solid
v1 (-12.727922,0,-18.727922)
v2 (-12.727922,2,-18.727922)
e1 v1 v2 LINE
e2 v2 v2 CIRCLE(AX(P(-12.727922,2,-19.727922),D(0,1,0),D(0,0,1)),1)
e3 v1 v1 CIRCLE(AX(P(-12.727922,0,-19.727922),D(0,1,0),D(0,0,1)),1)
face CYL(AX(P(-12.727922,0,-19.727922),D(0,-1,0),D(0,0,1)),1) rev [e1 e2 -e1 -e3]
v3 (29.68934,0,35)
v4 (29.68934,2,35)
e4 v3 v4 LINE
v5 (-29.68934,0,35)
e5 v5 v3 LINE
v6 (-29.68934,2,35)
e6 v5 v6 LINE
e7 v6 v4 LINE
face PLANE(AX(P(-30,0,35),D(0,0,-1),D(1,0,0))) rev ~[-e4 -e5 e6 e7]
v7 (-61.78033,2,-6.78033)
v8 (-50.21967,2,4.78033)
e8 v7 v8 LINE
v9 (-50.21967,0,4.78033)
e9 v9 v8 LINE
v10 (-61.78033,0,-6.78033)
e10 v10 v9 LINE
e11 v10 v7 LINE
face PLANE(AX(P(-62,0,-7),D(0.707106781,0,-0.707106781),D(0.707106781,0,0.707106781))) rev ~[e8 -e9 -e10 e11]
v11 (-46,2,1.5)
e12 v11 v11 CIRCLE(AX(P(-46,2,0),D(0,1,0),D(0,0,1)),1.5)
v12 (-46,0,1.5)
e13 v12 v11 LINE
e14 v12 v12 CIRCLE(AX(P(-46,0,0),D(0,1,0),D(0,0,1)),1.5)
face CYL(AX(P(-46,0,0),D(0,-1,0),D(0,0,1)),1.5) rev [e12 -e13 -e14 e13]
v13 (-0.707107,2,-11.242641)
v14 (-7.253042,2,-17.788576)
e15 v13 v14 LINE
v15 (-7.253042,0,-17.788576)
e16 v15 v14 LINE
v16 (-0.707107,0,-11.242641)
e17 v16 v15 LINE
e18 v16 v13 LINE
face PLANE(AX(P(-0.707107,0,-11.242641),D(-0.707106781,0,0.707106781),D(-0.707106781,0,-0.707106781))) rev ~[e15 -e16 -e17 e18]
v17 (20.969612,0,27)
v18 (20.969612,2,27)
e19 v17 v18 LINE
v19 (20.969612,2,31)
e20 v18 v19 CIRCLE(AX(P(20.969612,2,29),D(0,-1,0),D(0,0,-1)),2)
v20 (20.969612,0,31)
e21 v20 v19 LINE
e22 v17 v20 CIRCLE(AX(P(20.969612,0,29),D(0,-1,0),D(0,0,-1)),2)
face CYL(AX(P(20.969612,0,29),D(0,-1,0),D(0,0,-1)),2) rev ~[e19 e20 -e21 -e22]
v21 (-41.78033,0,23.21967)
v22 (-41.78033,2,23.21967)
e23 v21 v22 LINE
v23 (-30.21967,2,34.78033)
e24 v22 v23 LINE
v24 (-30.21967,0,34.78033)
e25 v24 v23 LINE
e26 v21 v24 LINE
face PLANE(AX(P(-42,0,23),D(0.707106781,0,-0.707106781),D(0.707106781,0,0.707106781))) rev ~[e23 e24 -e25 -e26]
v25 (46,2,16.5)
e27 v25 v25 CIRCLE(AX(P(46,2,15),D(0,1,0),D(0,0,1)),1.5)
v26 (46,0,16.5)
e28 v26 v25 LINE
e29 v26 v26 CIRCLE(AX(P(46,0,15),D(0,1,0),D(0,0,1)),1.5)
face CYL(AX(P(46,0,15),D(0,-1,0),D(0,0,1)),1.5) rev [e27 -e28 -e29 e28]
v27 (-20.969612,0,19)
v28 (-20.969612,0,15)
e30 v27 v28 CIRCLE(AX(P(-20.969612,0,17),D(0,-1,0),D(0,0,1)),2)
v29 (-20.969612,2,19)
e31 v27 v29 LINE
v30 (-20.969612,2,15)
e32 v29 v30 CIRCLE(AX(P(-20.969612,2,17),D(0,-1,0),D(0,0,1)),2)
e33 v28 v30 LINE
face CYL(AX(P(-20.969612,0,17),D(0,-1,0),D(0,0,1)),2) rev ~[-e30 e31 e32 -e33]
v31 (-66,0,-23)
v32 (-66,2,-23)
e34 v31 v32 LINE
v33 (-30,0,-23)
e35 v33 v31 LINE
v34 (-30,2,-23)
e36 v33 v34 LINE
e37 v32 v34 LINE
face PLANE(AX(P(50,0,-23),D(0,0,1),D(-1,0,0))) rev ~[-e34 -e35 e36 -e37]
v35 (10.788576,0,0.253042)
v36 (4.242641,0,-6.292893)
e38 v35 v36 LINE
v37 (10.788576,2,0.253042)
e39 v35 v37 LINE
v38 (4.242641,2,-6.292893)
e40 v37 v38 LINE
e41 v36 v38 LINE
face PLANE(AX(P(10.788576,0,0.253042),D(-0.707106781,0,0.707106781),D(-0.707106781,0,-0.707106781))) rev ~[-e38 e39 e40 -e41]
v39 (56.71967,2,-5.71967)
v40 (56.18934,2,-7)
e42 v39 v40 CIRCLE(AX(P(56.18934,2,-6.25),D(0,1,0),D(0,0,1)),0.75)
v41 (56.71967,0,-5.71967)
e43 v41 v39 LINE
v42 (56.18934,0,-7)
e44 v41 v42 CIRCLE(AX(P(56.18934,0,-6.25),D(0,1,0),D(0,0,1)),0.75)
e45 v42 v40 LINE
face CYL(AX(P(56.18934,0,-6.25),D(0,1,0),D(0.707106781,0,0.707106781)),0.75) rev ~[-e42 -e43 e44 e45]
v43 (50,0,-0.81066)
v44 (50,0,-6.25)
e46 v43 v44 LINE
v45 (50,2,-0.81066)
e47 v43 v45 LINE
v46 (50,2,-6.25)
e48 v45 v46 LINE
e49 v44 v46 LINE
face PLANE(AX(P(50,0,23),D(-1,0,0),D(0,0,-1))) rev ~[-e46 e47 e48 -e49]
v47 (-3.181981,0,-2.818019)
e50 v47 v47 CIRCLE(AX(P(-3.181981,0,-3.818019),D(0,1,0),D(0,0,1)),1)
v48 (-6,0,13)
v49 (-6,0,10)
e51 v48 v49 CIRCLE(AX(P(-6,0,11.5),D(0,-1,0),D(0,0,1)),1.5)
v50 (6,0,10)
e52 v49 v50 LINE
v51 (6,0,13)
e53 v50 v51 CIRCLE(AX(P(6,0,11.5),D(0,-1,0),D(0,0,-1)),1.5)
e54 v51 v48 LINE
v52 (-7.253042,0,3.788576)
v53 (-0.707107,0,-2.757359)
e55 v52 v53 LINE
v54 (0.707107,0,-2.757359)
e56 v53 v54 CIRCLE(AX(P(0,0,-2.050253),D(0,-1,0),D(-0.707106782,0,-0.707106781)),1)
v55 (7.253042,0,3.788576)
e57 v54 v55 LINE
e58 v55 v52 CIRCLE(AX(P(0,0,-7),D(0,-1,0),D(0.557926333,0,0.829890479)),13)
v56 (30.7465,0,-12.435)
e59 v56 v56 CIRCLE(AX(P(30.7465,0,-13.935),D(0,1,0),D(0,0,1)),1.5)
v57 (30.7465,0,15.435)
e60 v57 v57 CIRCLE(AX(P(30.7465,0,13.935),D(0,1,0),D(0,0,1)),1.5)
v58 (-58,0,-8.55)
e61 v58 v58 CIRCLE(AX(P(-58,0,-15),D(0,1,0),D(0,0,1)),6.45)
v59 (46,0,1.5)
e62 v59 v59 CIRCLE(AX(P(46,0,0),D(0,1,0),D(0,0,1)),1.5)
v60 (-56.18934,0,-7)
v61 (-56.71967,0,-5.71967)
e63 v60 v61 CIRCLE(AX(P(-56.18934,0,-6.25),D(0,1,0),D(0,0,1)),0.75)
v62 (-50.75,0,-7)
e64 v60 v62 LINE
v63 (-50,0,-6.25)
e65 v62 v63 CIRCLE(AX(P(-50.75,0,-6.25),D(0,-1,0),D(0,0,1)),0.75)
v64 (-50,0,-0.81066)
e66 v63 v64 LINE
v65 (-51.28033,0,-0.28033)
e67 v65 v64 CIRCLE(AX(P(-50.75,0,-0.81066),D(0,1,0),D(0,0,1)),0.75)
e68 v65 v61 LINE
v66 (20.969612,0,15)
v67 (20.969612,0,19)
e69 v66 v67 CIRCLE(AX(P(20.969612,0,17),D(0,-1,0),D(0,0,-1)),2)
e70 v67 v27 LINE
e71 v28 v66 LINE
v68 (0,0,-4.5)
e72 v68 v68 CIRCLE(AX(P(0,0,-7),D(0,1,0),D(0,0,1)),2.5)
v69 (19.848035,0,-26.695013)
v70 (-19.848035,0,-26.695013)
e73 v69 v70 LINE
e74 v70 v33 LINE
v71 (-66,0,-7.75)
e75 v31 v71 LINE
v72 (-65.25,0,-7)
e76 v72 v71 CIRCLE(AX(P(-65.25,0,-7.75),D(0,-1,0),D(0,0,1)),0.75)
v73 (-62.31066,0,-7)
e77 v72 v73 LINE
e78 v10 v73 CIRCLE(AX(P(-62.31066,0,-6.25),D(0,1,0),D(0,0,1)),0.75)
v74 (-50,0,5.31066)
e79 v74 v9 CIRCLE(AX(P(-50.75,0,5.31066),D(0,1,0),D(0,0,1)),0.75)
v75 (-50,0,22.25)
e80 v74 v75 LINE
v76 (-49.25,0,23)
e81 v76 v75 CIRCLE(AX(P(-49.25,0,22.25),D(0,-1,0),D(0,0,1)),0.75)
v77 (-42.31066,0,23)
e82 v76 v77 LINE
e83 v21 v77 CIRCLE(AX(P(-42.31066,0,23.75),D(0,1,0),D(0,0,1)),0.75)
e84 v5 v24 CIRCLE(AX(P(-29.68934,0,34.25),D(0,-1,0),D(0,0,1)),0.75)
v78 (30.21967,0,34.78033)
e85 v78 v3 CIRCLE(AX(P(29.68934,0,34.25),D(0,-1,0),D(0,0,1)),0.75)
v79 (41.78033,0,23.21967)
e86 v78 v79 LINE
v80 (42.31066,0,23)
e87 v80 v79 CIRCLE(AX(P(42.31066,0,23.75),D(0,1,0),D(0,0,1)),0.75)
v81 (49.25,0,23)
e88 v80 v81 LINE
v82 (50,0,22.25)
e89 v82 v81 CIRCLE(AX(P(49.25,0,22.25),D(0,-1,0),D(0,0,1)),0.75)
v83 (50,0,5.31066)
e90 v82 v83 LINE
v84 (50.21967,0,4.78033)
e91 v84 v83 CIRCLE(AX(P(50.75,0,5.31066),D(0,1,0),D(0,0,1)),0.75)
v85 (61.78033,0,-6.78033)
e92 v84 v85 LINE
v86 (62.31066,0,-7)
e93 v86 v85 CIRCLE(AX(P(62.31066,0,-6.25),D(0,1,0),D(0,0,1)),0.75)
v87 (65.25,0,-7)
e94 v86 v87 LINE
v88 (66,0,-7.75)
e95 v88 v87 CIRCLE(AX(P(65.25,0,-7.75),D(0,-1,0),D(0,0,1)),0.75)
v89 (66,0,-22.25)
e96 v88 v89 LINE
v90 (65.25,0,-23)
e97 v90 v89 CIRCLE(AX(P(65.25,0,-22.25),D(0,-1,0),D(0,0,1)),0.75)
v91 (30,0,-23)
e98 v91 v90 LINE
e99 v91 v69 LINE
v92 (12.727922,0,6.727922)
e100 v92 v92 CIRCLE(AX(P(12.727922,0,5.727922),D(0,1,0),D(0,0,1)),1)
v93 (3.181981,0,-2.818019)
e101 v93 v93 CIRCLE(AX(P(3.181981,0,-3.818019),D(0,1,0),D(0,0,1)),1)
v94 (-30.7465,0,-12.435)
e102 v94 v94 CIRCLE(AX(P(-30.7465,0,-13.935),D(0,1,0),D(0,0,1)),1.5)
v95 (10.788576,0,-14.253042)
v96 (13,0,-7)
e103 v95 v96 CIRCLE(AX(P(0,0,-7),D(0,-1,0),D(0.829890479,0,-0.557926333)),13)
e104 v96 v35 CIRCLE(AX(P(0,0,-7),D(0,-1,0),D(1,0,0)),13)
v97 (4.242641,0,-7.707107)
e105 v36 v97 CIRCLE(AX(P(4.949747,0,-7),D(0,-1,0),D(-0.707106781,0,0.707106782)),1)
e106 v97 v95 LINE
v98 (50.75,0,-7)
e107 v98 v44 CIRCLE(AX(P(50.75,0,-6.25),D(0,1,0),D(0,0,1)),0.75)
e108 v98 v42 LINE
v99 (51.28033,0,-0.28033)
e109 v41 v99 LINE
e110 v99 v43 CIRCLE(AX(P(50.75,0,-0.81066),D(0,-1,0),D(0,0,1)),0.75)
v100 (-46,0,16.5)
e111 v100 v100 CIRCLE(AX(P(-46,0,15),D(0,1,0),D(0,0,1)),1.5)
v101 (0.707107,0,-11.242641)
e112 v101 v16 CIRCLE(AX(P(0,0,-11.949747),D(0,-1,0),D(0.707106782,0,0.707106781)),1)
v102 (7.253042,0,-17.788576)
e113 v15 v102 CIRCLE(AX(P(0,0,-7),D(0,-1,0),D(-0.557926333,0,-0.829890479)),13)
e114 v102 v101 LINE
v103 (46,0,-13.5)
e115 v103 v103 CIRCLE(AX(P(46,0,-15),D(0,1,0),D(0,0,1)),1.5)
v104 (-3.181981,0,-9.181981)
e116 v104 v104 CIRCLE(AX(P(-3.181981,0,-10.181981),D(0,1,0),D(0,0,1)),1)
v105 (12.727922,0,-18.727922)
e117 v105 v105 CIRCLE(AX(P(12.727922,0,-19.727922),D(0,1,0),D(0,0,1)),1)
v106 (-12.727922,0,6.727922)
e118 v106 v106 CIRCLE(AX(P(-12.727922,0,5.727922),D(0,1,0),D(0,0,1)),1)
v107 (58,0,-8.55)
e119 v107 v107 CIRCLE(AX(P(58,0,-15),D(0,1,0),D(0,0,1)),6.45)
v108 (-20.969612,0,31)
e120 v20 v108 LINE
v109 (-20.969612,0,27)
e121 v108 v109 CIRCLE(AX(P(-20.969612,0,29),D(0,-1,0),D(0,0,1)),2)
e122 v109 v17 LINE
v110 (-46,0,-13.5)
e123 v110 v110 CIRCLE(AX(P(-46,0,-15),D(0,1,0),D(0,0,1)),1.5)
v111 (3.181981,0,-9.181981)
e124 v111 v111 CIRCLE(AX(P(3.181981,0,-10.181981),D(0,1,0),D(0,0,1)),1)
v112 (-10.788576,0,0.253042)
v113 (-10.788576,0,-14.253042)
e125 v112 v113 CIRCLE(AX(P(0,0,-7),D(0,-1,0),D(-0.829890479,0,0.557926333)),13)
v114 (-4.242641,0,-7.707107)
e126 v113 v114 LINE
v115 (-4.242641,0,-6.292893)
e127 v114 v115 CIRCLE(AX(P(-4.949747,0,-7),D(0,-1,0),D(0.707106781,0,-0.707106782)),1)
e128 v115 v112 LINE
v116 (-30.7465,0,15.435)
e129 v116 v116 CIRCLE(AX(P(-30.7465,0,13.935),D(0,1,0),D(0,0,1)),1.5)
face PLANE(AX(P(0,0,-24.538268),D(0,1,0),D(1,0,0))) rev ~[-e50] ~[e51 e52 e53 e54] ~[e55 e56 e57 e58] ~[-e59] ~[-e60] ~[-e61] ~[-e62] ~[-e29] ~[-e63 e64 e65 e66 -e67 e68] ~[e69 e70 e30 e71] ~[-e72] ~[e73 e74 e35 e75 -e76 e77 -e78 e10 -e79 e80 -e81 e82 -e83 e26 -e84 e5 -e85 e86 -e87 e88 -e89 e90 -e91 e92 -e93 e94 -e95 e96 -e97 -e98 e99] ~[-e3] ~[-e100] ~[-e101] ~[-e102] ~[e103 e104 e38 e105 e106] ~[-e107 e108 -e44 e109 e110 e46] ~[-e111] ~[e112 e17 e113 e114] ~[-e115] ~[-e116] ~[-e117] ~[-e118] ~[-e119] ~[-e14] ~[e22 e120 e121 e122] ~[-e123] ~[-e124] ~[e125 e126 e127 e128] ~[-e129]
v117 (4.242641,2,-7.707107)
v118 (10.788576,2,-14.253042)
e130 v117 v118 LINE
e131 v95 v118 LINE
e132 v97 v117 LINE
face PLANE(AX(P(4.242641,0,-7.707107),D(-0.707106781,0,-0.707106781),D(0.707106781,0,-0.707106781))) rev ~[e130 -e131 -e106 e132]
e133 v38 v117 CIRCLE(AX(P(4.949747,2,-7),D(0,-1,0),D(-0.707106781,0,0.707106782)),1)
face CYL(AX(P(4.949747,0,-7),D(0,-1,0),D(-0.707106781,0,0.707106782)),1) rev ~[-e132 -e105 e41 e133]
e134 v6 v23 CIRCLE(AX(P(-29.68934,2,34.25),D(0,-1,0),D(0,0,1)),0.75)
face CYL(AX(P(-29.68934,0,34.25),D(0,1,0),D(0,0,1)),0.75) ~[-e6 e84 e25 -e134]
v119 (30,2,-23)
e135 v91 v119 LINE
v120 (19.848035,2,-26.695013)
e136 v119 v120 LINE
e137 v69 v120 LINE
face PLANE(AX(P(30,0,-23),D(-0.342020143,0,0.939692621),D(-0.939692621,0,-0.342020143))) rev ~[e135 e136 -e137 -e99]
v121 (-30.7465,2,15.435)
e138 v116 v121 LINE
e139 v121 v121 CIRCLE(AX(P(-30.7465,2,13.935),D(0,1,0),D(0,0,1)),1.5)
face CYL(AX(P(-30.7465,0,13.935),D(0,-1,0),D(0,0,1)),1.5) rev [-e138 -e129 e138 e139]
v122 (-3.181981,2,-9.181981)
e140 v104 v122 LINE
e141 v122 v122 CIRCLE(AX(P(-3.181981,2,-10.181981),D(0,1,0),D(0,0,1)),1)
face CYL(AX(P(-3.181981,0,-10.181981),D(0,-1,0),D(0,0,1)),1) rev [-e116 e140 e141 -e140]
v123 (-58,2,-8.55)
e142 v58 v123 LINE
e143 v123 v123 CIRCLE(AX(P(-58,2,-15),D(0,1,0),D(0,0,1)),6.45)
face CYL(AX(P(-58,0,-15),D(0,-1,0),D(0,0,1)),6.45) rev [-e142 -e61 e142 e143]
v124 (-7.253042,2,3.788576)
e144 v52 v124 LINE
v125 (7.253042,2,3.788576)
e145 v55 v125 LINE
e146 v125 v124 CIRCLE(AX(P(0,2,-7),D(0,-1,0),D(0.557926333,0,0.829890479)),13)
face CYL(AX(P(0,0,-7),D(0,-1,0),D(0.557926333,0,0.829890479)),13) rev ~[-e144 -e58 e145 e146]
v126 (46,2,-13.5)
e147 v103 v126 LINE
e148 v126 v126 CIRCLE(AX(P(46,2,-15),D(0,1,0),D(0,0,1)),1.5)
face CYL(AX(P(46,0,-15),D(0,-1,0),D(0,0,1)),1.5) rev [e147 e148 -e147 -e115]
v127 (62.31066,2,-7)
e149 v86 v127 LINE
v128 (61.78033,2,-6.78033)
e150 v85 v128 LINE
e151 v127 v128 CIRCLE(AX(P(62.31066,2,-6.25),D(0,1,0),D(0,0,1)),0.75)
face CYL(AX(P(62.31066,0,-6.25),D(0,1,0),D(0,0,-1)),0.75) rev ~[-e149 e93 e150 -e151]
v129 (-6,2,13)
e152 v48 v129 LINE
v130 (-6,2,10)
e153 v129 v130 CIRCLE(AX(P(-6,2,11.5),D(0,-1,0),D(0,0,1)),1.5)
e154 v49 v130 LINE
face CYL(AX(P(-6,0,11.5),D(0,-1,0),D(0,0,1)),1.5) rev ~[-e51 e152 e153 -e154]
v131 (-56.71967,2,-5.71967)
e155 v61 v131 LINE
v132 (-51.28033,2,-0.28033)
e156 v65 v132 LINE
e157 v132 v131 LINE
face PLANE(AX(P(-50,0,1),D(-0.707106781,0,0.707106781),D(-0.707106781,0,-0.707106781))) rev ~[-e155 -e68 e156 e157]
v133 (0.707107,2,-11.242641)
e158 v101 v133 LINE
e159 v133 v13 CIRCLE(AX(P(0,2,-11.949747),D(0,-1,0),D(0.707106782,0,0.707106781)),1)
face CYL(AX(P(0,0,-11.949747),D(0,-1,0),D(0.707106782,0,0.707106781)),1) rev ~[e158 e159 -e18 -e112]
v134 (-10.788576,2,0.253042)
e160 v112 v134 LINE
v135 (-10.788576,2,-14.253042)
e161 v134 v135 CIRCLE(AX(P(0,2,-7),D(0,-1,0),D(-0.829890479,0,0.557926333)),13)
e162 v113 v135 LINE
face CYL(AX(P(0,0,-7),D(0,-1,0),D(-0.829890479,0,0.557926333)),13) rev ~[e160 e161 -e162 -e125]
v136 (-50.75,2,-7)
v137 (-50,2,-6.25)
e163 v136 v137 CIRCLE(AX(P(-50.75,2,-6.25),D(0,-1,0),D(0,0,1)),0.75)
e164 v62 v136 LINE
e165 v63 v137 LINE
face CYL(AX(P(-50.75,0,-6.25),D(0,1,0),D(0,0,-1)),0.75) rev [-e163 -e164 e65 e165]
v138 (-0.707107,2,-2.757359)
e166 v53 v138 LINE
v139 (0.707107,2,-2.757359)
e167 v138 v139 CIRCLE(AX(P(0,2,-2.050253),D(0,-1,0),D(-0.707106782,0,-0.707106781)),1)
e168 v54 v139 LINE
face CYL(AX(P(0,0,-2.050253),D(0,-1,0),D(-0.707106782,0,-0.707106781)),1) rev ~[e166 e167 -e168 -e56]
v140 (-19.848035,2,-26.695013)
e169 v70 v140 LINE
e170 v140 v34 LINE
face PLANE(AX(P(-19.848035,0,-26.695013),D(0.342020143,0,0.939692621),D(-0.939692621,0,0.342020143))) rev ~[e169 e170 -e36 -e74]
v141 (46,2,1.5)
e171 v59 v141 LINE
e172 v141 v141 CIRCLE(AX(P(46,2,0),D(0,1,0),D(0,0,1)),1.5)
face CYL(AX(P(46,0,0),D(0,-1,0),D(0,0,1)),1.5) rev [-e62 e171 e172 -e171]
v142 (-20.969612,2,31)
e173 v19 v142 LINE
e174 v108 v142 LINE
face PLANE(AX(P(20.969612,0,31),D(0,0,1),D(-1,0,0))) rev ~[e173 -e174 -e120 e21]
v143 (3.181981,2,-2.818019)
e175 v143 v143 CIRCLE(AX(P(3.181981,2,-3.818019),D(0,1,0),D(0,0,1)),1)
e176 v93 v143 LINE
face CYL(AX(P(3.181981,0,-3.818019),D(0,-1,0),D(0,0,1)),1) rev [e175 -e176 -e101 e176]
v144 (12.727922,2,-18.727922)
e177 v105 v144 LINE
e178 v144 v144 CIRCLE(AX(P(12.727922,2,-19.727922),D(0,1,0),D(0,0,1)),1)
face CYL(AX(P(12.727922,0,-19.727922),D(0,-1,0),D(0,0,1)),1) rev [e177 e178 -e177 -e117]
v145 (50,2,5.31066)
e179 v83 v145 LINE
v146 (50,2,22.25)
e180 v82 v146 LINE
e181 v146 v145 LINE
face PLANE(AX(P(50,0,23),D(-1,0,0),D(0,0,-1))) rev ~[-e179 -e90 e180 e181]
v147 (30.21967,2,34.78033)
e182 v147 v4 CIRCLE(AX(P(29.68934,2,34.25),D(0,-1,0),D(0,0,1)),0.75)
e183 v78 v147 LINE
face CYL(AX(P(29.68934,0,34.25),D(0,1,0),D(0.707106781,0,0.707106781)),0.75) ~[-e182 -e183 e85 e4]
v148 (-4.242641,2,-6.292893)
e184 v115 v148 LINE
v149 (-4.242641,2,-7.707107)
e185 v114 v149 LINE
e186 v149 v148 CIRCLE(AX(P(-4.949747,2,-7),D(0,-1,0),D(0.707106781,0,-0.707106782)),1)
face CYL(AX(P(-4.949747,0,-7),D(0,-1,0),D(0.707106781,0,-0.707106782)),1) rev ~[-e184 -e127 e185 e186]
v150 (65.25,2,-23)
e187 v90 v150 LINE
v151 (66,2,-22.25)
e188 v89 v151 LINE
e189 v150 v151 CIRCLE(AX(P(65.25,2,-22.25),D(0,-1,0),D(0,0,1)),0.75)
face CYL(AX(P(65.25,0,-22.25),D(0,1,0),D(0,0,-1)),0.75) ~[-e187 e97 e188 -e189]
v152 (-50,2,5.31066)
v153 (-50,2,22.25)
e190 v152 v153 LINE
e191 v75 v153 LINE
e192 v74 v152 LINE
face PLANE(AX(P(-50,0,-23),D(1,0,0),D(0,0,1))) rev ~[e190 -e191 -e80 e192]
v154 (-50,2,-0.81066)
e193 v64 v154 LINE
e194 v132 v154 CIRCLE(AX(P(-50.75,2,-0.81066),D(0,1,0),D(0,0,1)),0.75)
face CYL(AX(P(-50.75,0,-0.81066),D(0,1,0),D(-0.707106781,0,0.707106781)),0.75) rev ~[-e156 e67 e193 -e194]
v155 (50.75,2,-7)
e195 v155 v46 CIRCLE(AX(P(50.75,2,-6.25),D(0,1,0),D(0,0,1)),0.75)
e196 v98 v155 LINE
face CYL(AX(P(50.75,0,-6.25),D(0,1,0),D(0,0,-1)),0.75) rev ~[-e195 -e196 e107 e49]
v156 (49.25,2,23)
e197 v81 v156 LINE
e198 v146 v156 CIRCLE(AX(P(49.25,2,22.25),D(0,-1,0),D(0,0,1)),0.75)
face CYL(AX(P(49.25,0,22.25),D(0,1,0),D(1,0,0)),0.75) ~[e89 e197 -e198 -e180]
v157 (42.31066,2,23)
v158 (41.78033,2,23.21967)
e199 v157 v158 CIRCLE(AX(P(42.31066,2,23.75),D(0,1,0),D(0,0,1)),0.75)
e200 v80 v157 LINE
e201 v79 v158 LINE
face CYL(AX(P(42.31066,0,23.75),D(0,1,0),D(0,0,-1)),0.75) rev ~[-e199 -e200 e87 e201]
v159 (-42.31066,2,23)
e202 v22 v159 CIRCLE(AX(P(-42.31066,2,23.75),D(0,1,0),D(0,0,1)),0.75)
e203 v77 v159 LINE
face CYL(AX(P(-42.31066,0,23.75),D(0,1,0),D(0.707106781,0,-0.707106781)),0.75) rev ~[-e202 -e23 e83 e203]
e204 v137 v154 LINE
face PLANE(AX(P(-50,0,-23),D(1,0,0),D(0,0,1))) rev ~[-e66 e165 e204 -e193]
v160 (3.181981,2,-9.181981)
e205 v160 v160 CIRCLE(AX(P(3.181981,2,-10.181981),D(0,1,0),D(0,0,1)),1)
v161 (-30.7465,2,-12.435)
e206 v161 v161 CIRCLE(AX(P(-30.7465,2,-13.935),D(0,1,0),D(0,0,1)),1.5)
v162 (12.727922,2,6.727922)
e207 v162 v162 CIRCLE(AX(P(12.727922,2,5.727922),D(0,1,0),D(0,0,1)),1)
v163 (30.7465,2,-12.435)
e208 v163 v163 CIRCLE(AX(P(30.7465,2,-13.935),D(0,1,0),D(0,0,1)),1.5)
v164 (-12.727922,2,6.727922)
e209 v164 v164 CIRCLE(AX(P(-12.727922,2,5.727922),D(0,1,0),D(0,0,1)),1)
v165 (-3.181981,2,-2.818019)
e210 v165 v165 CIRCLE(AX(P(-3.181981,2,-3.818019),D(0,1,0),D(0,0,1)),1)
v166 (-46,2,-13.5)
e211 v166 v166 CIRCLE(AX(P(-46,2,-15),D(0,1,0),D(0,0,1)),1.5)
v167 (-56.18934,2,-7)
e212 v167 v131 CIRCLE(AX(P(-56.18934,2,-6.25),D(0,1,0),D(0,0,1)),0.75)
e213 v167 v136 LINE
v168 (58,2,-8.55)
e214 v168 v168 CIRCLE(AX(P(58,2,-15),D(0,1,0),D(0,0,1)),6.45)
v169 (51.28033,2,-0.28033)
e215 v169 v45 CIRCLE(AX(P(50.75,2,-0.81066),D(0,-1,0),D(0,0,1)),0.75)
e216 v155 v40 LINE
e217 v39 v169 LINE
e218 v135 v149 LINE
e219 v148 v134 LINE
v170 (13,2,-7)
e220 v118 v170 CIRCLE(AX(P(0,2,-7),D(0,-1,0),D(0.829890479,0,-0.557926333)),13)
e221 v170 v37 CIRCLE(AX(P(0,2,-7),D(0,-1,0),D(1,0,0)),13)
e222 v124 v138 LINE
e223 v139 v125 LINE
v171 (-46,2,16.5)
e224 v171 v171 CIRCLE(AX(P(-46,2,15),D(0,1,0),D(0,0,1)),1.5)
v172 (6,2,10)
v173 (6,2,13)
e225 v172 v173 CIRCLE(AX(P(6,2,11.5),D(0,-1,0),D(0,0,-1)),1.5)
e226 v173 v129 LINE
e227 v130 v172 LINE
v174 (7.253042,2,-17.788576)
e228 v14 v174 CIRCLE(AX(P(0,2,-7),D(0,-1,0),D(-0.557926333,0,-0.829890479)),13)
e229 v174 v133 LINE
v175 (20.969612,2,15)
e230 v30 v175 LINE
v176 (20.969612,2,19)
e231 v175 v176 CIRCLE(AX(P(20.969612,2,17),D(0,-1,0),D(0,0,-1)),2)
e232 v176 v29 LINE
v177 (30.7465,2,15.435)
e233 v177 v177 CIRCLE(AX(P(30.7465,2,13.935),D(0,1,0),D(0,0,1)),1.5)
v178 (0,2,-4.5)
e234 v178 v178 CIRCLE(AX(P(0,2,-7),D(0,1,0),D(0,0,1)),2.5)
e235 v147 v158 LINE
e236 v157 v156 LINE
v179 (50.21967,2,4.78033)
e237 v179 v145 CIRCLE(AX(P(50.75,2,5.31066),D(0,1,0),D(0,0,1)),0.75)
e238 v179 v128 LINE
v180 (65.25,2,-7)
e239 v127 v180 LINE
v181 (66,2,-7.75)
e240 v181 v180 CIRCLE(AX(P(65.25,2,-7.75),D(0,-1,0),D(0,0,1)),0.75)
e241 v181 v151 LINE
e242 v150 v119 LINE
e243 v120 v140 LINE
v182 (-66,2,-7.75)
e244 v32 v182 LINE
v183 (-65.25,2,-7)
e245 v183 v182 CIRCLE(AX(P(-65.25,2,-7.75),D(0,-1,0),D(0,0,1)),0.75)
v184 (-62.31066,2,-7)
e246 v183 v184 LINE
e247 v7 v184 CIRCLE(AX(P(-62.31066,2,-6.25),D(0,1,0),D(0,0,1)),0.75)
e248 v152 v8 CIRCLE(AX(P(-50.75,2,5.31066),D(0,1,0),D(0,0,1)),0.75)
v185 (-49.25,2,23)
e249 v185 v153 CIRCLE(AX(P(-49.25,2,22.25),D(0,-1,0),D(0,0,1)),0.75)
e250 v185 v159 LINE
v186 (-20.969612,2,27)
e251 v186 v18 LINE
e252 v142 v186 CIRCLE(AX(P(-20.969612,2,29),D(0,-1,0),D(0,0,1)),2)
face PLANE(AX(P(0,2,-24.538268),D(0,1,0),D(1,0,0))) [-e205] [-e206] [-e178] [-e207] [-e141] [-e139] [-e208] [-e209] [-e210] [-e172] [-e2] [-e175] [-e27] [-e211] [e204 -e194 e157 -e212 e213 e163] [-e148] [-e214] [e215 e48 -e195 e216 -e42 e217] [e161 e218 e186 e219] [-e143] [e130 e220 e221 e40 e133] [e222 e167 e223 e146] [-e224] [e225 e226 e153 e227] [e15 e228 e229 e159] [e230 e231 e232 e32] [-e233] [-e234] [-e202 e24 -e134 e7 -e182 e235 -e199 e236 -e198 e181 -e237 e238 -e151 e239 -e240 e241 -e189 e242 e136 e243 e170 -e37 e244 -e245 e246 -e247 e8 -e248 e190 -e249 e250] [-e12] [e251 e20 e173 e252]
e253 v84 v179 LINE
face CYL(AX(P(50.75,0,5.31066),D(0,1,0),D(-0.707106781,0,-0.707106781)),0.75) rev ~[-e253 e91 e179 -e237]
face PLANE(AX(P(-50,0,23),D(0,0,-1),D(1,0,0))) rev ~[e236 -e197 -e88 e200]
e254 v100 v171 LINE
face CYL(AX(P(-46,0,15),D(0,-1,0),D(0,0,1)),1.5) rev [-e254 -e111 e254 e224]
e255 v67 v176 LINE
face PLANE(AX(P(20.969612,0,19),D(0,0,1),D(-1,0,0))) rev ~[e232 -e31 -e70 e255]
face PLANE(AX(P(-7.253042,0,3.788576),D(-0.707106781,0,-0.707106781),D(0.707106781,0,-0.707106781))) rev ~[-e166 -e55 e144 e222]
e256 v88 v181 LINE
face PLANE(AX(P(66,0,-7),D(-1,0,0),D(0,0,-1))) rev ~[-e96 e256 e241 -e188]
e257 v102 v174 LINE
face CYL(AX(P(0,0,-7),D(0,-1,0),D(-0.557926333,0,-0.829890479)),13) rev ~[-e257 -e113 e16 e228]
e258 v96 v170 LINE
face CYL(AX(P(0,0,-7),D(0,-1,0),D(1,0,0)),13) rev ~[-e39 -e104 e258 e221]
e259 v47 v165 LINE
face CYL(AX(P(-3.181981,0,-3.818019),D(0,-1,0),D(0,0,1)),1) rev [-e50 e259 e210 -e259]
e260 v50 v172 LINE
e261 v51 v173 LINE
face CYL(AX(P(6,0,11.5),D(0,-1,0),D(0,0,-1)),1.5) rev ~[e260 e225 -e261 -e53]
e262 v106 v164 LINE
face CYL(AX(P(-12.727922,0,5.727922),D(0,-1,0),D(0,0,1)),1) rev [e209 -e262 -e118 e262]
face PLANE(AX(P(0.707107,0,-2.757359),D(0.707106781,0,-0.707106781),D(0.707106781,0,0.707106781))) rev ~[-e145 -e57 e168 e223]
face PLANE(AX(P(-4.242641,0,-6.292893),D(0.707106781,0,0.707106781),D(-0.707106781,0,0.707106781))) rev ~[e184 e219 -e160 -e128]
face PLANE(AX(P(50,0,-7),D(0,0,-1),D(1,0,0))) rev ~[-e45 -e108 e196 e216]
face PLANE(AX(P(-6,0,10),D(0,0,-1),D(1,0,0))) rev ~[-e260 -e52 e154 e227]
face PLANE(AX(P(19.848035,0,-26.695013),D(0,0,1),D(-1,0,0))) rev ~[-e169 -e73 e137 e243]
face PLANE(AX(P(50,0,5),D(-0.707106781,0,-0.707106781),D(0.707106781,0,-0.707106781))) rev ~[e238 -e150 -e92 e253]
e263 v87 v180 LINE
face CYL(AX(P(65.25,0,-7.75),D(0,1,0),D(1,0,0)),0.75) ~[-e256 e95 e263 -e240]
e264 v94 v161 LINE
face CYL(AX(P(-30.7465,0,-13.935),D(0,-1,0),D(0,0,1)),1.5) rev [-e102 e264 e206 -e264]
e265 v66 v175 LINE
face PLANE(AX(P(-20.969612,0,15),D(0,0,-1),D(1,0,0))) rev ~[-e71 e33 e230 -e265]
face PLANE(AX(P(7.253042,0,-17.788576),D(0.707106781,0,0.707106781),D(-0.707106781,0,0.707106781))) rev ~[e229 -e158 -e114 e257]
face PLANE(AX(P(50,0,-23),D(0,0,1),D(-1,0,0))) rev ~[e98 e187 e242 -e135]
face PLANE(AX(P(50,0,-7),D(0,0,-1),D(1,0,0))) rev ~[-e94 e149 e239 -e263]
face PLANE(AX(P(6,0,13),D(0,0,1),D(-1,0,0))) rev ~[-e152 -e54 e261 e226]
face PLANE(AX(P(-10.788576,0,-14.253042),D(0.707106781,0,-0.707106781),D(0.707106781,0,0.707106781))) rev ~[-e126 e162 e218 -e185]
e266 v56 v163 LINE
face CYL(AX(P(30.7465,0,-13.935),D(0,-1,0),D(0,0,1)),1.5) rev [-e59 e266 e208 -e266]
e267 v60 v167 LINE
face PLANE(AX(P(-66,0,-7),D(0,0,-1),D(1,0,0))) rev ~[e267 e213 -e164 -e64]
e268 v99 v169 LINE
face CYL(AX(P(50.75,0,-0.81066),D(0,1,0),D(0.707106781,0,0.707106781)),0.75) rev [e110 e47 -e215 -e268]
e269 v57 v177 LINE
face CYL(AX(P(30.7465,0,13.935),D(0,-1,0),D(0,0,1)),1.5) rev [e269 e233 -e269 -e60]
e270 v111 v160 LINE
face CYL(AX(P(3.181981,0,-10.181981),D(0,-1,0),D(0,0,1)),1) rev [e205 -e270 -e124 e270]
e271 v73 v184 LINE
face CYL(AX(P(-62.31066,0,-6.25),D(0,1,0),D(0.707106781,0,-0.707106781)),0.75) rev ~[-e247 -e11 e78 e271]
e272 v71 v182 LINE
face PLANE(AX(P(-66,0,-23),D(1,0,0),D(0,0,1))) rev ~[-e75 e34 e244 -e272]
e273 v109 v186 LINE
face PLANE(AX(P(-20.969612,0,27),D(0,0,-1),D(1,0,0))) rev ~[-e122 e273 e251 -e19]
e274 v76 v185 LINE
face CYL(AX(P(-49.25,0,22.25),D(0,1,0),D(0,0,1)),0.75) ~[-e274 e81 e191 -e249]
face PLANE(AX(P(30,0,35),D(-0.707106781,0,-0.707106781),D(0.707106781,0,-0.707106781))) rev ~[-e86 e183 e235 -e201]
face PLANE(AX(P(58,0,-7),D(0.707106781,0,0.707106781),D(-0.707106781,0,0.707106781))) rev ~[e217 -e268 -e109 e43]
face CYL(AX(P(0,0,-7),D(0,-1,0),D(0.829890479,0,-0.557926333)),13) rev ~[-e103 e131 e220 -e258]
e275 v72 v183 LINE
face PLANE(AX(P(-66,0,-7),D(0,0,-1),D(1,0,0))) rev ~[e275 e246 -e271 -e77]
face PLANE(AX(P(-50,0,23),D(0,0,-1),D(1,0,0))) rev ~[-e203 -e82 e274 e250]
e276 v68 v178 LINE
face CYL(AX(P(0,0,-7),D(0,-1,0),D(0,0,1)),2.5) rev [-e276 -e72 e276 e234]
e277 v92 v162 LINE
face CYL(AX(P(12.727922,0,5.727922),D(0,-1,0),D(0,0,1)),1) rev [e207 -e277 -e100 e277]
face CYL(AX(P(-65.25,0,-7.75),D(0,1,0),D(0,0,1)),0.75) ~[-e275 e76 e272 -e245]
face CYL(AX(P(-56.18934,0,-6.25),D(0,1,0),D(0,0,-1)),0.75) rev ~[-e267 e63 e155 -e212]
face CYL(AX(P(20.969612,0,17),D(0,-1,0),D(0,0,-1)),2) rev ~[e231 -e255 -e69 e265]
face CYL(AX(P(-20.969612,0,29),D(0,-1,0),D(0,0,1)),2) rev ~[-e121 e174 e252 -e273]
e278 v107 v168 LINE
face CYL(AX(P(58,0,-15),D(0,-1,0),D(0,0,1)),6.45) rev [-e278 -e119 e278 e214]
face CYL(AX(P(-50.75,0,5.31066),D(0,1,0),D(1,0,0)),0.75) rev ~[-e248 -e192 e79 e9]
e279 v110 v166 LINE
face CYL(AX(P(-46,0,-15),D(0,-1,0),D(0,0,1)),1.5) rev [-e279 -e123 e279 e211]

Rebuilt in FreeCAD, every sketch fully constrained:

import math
import FreeCAD as App
import Part
import Sketcher
Q = App.Units.Quantity


def edges_at(feature, points):
    """Names of the edges that pass closest to the given points."""
    edges = feature.Shape.Edges
    near = lambda p: min(range(len(edges)), key=lambda i: edges[i].distToShape(Part.Vertex(*p))[0])
    return sorted({f"Edge{near(p) + 1}" for p in points})


def add_polygon(sketch, points):
    """Adds a closed chain of lines whose ends are joined by coincident constraints."""
    first, n = sketch.GeometryCount, len(points)
    for a, b in zip(points, points[1:] + points[:1]):
        sketch.addGeometry(Part.LineSegment(App.Vector(*a, 0), App.Vector(*b, 0)), False)
    for i in range(n):
        sketch.addConstraint(Sketcher.Constraint("Coincident", first + i, 2, first + (i + 1) % n, 1))

doc = App.newDocument("Part")
params = doc.addObject("Spreadsheet::Sheet", "Params")
for row, (alias, value) in enumerate([
    ("sketch1_diameter", "3 mm"),
    ("sketch1_diameter2", "2 mm"),
    ("sketch1_diameter3", "5 mm"),
    ("sketch1_radius", "2 mm"),
    ("sketch1_radius2", "13 mm"),
    ("pad1_length", "2 mm"),
    ("fillet_radius", "0.75 mm"),
], start=1):
    params.set(f"A{row}", alias)
    params.set(f"B{row}", "=" + value)
    params.setAlias(f"B{row}", alias)

body = doc.addObject("PartDesign::Body", "Body")

sketch1 = body.newObject("Sketcher::SketchObject", "Sketch")
sketch1.AttachmentSupport = (doc.getObject("XZ_Plane"), [""])
sketch1.MapMode = "FlatFace"
add_polygon(sketch1, [(-19.848035, -26.695013), (-30, -23), (-66, -23), (-66, -7), (-62, -7), (-50, 5), (-50, 23), (-42, 23), (-30, 35), (30, 35), (42, 23), (50, 23), (50, 5), (62, -7), (66, -7), (66, -23), (30, -23), (19.848035, -26.695013)])
add_polygon(sketch1, [(-50, -7), (-50, 1), (-58, -7)])
sketch1.addGeometry(Part.Circle(App.Vector(46, -15, 0), App.Vector(0, 0, 1), 1.5), False)
add_polygon(sketch1, [(50, 1), (50, -7), (58, -7)])
sketch1.addGeometry(Part.Circle(App.Vector(-46, 15, 0), App.Vector(0, 0, 1), 1.5), False)
sketch1.addGeometry(Part.Circle(App.Vector(-30.7465, 13.935, 0), App.Vector(0, 0, 1), 1.5), False)
sketch1.addGeometry(Part.Circle(App.Vector(-46, 0, 0), App.Vector(0, 0, 1), 1.5), False)
sketch1.addGeometry(Part.Circle(App.Vector(-12.727922, 5.727922, 0), App.Vector(0, 0, 1), 1), False)
sketch1.addGeometry(Part.LineSegment(App.Vector(20.969612, 19, 0), App.Vector(-20.969612, 19, 0)), False)
sketch1.addGeometry(Part.ArcOfCircle(Part.Circle(App.Vector(-20.969612, 17, 0), App.Vector(0, 0, 1), 2), math.radians(90), math.radians(270)), False)
sketch1.addGeometry(Part.LineSegment(App.Vector(-20.969612, 15, 0), App.Vector(20.969612, 15, 0)), False)
sketch1.addGeometry(Part.ArcOfCircle(Part.Circle(App.Vector(20.969612, 17, 0), App.Vector(0, 0, 1), 2), math.radians(-90), math.radians(90)), False)
sketch1.addGeometry(Part.LineSegment(App.Vector(6, 13, 0), App.Vector(-6, 13, 0)), False)
sketch1.addGeometry(Part.ArcOfCircle(Part.Circle(App.Vector(-6, 11.5, 0), App.Vector(0, 0, 1), 1.5), math.radians(90), math.radians(270)), False)
sketch1.addGeometry(Part.LineSegment(App.Vector(-6, 10, 0), App.Vector(6, 10, 0)), False)
sketch1.addGeometry(Part.ArcOfCircle(Part.Circle(App.Vector(6, 11.5, 0), App.Vector(0, 0, 1), 1.5), math.radians(-90), math.radians(90)), False)
sketch1.addGeometry(Part.Circle(App.Vector(30.7465, 13.935, 0), App.Vector(0, 0, 1), 1.5), False)
sketch1.addGeometry(Part.Circle(App.Vector(46, 15, 0), App.Vector(0, 0, 1), 1.5), False)
sketch1.addGeometry(Part.Circle(App.Vector(12.727922, 5.727922, 0), App.Vector(0, 0, 1), 1), False)
sketch1.addGeometry(Part.Circle(App.Vector(46, 0, 0), App.Vector(0, 0, 1), 1.5), False)
sketch1.addGeometry(Part.Circle(App.Vector(-46, -15, 0), App.Vector(0, 0, 1), 1.5), False)
sketch1.addGeometry(Part.Circle(App.Vector(-30.7465, -13.935, 0), App.Vector(0, 0, 1), 1.5), False)
sketch1.addGeometry(Part.Circle(App.Vector(-12.727922, -19.727922, 0), App.Vector(0, 0, 1), 1), False)
sketch1.addGeometry(Part.Circle(App.Vector(12.727922, -19.727922, 0), App.Vector(0, 0, 1), 1), False)
sketch1.addGeometry(Part.Circle(App.Vector(30.7465, -13.935, 0), App.Vector(0, 0, 1), 1.5), False)
sketch1.addGeometry(Part.Circle(App.Vector(-58, -15, 0), App.Vector(0, 0, 1), 6.45), False)
sketch1.addGeometry(Part.ArcOfCircle(Part.Circle(App.Vector(-20.969612, 29, 0), App.Vector(0, 0, 1), 2), math.radians(90), math.radians(270)), False)
sketch1.addGeometry(Part.LineSegment(App.Vector(-20.969612, 27, 0), App.Vector(20.969612, 27, 0)), False)
sketch1.addGeometry(Part.ArcOfCircle(Part.Circle(App.Vector(20.969612, 29, 0), App.Vector(0, 0, 1), 2), math.radians(-90), math.radians(90)), False)
sketch1.addGeometry(Part.LineSegment(App.Vector(20.969612, 31, 0), App.Vector(-20.969612, 31, 0)), False)
sketch1.addGeometry(Part.Circle(App.Vector(58, -15, 0), App.Vector(0, 0, 1), 6.45), False)
sketch1.addGeometry(Part.ArcOfCircle(Part.Circle(App.Vector(0, -7, 0), App.Vector(0, 0, 1), 13), math.radians(0), math.radians(33.912511)), False)
sketch1.addGeometry(Part.LineSegment(App.Vector(10.788576, 0.253042, 0), App.Vector(4.242641, -6.292893, 0)), False)
sketch1.addGeometry(Part.ArcOfCircle(Part.Circle(App.Vector(4.949747, -7, 0), App.Vector(0, 0, 1), 1), math.radians(135), math.radians(225)), False)
sketch1.addGeometry(Part.LineSegment(App.Vector(4.242641, -7.707107, 0), App.Vector(10.788576, -14.253042, 0)), False)
sketch1.addGeometry(Part.ArcOfCircle(Part.Circle(App.Vector(0, -7, 0), App.Vector(0, 0, 1), 13), math.radians(-33.912511), math.radians(0)), False)
sketch1.addGeometry(Part.ArcOfCircle(Part.Circle(App.Vector(0, -7, 0), App.Vector(0, 0, 1), 13), math.radians(-123.912511), math.radians(-56.087489)), False)
sketch1.addGeometry(Part.LineSegment(App.Vector(7.253042, -17.788576, 0), App.Vector(0.707107, -11.242641, 0)), False)
sketch1.addGeometry(Part.ArcOfCircle(Part.Circle(App.Vector(0, -11.949747, 0), App.Vector(0, 0, 1), 1), math.radians(45), math.radians(135)), False)
sketch1.addGeometry(Part.LineSegment(App.Vector(-0.707107, -11.242641, 0), App.Vector(-7.253042, -17.788576, 0)), False)
sketch1.addGeometry(Part.ArcOfCircle(Part.Circle(App.Vector(0, -7, 0), App.Vector(0, 0, 1), 13), math.radians(146.087489), math.radians(213.912511)), False)
sketch1.addGeometry(Part.LineSegment(App.Vector(-10.788576, -14.253042, 0), App.Vector(-4.242641, -7.707107, 0)), False)
sketch1.addGeometry(Part.ArcOfCircle(Part.Circle(App.Vector(-4.949747, -7, 0), App.Vector(0, 0, 1), 1), math.radians(-45), math.radians(45)), False)
sketch1.addGeometry(Part.LineSegment(App.Vector(-4.242641, -6.292893, 0), App.Vector(-10.788576, 0.253042, 0)), False)
sketch1.addGeometry(Part.ArcOfCircle(Part.Circle(App.Vector(0, -7, 0), App.Vector(0, 0, 1), 13), math.radians(56.087489), math.radians(123.912511)), False)
sketch1.addGeometry(Part.LineSegment(App.Vector(-7.253042, 3.788576, 0), App.Vector(-0.707107, -2.757359, 0)), False)
sketch1.addGeometry(Part.ArcOfCircle(Part.Circle(App.Vector(0, -2.050253, 0), App.Vector(0, 0, 1), 1), math.radians(-135), math.radians(-45)), False)
sketch1.addGeometry(Part.LineSegment(App.Vector(0.707107, -2.757359, 0), App.Vector(7.253042, 3.788576, 0)), False)
sketch1.addGeometry(Part.Circle(App.Vector(3.181981, -3.818019, 0), App.Vector(0, 0, 1), 1), False)
sketch1.addGeometry(Part.Circle(App.Vector(-3.181981, -10.181981, 0), App.Vector(0, 0, 1), 1), False)
sketch1.addGeometry(Part.Circle(App.Vector(3.181981, -10.181981, 0), App.Vector(0, 0, 1), 1), False)
sketch1.addGeometry(Part.Circle(App.Vector(0, -7, 0), App.Vector(0, 0, 1), 2.5), False)
sketch1.addGeometry(Part.Circle(App.Vector(-3.181981, -3.818019, 0), App.Vector(0, 0, 1), 1), False)
sketch1.addConstraint([
    Sketcher.Constraint("Tangent", 29, 2, 30, 1),
    Sketcher.Constraint("Tangent", 30, 2, 31, 1),
    Sketcher.Constraint("Tangent", 31, 2, 32, 1),
    Sketcher.Constraint("Tangent", 32, 2, 29, 1),
    Sketcher.Constraint("Tangent", 33, 2, 34, 1),
    Sketcher.Constraint("Tangent", 34, 2, 35, 1),
    Sketcher.Constraint("Tangent", 35, 2, 36, 1),
    Sketcher.Constraint("Tangent", 36, 2, 33, 1),
    Sketcher.Constraint("Tangent", 47, 2, 48, 1),
    Sketcher.Constraint("Tangent", 48, 2, 49, 1),
    Sketcher.Constraint("Tangent", 49, 2, 50, 1),
    Sketcher.Constraint("Tangent", 50, 2, 47, 1),
    Sketcher.Constraint("Coincident", 52, 2, 53, 1),
    Sketcher.Constraint("Tangent", 53, 2, 54, 1),
    Sketcher.Constraint("Tangent", 54, 2, 55, 1),
    Sketcher.Constraint("Coincident", 55, 2, 56, 1),
    Sketcher.Constraint("Tangent", 56, 2, 52, 1),
    Sketcher.Constraint("Coincident", 57, 2, 58, 1),
    Sketcher.Constraint("Tangent", 58, 2, 59, 1),
    Sketcher.Constraint("Tangent", 59, 2, 60, 1),
    Sketcher.Constraint("Coincident", 60, 2, 57, 1),
    Sketcher.Constraint("Coincident", 61, 2, 62, 1),
    Sketcher.Constraint("Tangent", 62, 2, 63, 1),
    Sketcher.Constraint("Tangent", 63, 2, 64, 1),
    Sketcher.Constraint("Coincident", 64, 2, 61, 1),
    Sketcher.Constraint("Coincident", 65, 2, 66, 1),
    Sketcher.Constraint("Tangent", 66, 2, 67, 1),
    Sketcher.Constraint("Tangent", 67, 2, 68, 1),
    Sketcher.Constraint("Coincident", 68, 2, 65, 1),
    Sketcher.Constraint("Horizontal", 1),
    Sketcher.Constraint("Vertical", 2),
    Sketcher.Constraint("Horizontal", 3),
    Sketcher.Constraint("Vertical", 5),
    Sketcher.Constraint("Horizontal", 6),
    Sketcher.Constraint("Horizontal", 8),
    Sketcher.Constraint("Horizontal", 10),
    Sketcher.Constraint("Vertical", 11),
    Sketcher.Constraint("Horizontal", 13),
    Sketcher.Constraint("Vertical", 14),
    Sketcher.Constraint("Horizontal", 15),
    Sketcher.Constraint("Horizontal", 17),
    Sketcher.Constraint("Vertical", 18),
    Sketcher.Constraint("Horizontal", 20),
    Sketcher.Constraint("Vertical", 22),
    Sketcher.Constraint("Horizontal", 23),
    Sketcher.Constraint("Horizontal", 29),
    Sketcher.Constraint("Horizontal", 31),
    Sketcher.Constraint("Horizontal", 33),
    Sketcher.Constraint("Horizontal", 35),
    Sketcher.Constraint("Horizontal", 48),
    Sketcher.Constraint("Horizontal", 50),
    Sketcher.Constraint("Coincident", 57, 3, 52, 3),
    Sketcher.Constraint("Coincident", 61, 3, 52, 3),
    Sketcher.Constraint("Coincident", 65, 3, 52, 3),
    Sketcher.Constraint("Coincident", 72, 3, 52, 3),
    Sketcher.Constraint("Equal", 21, 25),
    Sketcher.Constraint("Equal", 25, 26),
    Sketcher.Constraint("Equal", 26, 27),
    Sketcher.Constraint("Equal", 27, 34),
    Sketcher.Constraint("Equal", 36, 37),
    Sketcher.Constraint("Equal", 37, 38),
    Sketcher.Constraint("Equal", 28, 39),
    Sketcher.Constraint("Equal", 38, 40),
    Sketcher.Constraint("Equal", 40, 41),
    Sketcher.Constraint("Equal", 41, 42),
    Sketcher.Constraint("Equal", 39, 43),
    Sketcher.Constraint("Equal", 43, 44),
    Sketcher.Constraint("Equal", 42, 45),
    Sketcher.Constraint("Equal", 32, 47),
    Sketcher.Constraint("Equal", 46, 51),
    Sketcher.Constraint("Equal", 44, 54),
    Sketcher.Constraint("Equal", 52, 56),
    Sketcher.Constraint("Equal", 56, 57),
    Sketcher.Constraint("Equal", 54, 59),
    Sketcher.Constraint("Equal", 57, 61),
    Sketcher.Constraint("Equal", 59, 63),
    Sketcher.Constraint("Equal", 61, 65),
    Sketcher.Constraint("Equal", 63, 67),
    Sketcher.Constraint("Equal", 67, 69),
    Sketcher.Constraint("Equal", 69, 70),
    Sketcher.Constraint("Equal", 70, 71),
    Sketcher.Constraint("Equal", 71, 73),
    Sketcher.Constraint("Symmetric", 21, 3, 25, 3, -1, 1),
    Sketcher.Constraint("Symmetric", 27, 3, 40, 3, -1, 1),
    Sketcher.Constraint("Symmetric", 38, 3, 41, 3, -1, 1),
    Sketcher.Constraint("Symmetric", 37, 3, 42, 3, -1, 1),
    Sketcher.Constraint("Symmetric", 26, 3, 45, 3, -1, 1),
    Sketcher.Constraint("Symmetric", 26, 3, 37, 3, -2),
    Sketcher.Constraint("Symmetric", 25, 3, 38, 3, -2),
    Sketcher.Constraint("Symmetric", 28, 3, 39, 3, -2),
    Sketcher.Constraint("Symmetric", 43, 3, 44, 3, -2),
    Sketcher.Constraint("Symmetric", 46, 3, 51, 3, -2),
    Sketcher.Constraint("Symmetric", 54, 3, 63, 3, -2),
    Sketcher.Constraint("Symmetric", 70, 3, 71, 3, -2),
    Sketcher.Constraint("Symmetric", 69, 3, 73, 3, -2),
    Sketcher.Constraint("Symmetric", 6, 2, 9, 2, -2),
    Sketcher.Constraint("Symmetric", 4, 2, 11, 2, -2),
    Sketcher.Constraint("Symmetric", 3, 2, 12, 2, -2),
    Sketcher.Constraint("Symmetric", 1, 2, 14, 2, -2),
    Sketcher.Constraint("Symmetric", 20, 2, 22, 2, -2),
    Sketcher.Constraint("Symmetric", 58, 2, 59, 2, -2),
    Sketcher.Constraint("Symmetric", 55, 2, 61, 2, -2),
    Sketcher.Constraint("Symmetric", 66, 2, 67, 2, -2),
    Sketcher.Constraint("PointOnObject", 27, 3, -1),
    Sketcher.Constraint("Parallel", 4, 7),
    Sketcher.Constraint("Perpendicular", 7, 9),
    Sketcher.Constraint("Parallel", 9, 12),
    Sketcher.Constraint("Perpendicular", 12, 19),
    Sketcher.Constraint("Perpendicular", 19, 24),
    Sketcher.Constraint("Perpendicular", 24, 53),
    Sketcher.Constraint("Perpendicular", 53, 55),
    Sketcher.Constraint("Parallel", 55, 58),
    Sketcher.Constraint("Perpendicular", 62, 64),
    Sketcher.Constraint("Parallel", 64, 66),
    Sketcher.Constraint("Horizontal", 41, 3, 46, 3),
    Sketcher.Constraint("Horizontal", 52, 3, 54, 3),
    Sketcher.Constraint("Horizontal", 72, 3, 2, 2),
    Sketcher.Constraint("Horizontal", 13, 2, 19, 2),
    Sketcher.Constraint("Horizontal", 18, 2, 24, 2),
    Sketcher.Constraint("Horizontal", 38, 3, 30, 2),
    Sketcher.Constraint("Horizontal", 23, 2, 56, 2),
    Sketcher.Constraint("Vertical", 25, 3, 27, 3),
    Sketcher.Constraint("Vertical", 28, 3, 43, 3),
    Sketcher.Constraint("Vertical", 30, 3, 47, 3),
    Sketcher.Constraint("Vertical", 32, 3, 49, 3),
    Sketcher.Constraint("Vertical", 69, 3, 71, 3),
    Sketcher.Constraint("Vertical", 0, 2, 7, 2),
    Sketcher.Constraint("Vertical", 8, 2, 15, 2),
    Sketcher.Constraint("Vertical", 5, 2, 18, 2),
    Sketcher.Constraint("Vertical", 46, 3, 19, 2),
    Sketcher.Constraint("Vertical", 60, 2, 65, 2),
    Sketcher.Constraint("Equal", 10, 20),
    Sketcher.Constraint("Equal", 4, 7),
    Sketcher.Constraint("Equal", 0, 16),
    Sketcher.Constraint("Equal", 55, 58),
    Sketcher.Constraint("Diameter", 21, 3.0),
    Sketcher.Constraint("Diameter", 28, 2.0),
    Sketcher.Constraint("Diameter", 72, 5.0),
    Sketcher.Constraint("Radius", 30, 2.0),
    Sketcher.Constraint("Radius", 52, 13.0),
    Sketcher.Constraint("Diameter", 46, 12.9),
    Sketcher.Constraint("DistanceX", 1, 2, 1, 1, 36.0),
    Sketcher.Constraint("DistanceX", 3, 1, 3, 2, 4.0),
    Sketcher.Constraint("DistanceX", 6, 1, 6, 2, 8.0),
    Sketcher.Constraint("DistanceX", 8, 1, 8, 2, 60.0),
    Sketcher.Constraint("DistanceX", 33, 2, 33, 1, 12.0),
    Sketcher.Constraint("DistanceY", 2, 1, 2, 2, 16.0),
    Sketcher.Constraint("DistanceY", 5, 1, 5, 2, 18.0),
    Sketcher.Constraint("Angle", 0, Q("160 deg")),
    Sketcher.Constraint("DistanceX", -1, 1, 21, 3, 46.0),
    Sketcher.Constraint("DistanceY", 21, 3, -1, 1, 15.0),
    Sketcher.Constraint("DistanceX", 34, 3, -1, 1, 6.0),
    Sketcher.Constraint("DistanceY", -1, 1, 47, 3, 29.0),
    Sketcher.Constraint("DistanceY", 52, 3, -1, 1, 7.0),
    Sketcher.Constraint("DistanceY", -1, 1, 33, 2, 13.0),
    Sketcher.Constraint("DistanceY", -1, 1, 26, 3, 13.935),
    Sketcher.Constraint("DistanceX", 17, 2, 17, 1, 39.69607),
    Sketcher.Constraint("DistanceX", 26, 3, -1, 1, 30.7465),
    Sketcher.Constraint("Distance", 53, 9.257351),
    Sketcher.Constraint("DistanceX", 29, 2, 29, 1, 41.939223),
    Sketcher.Constraint("DistanceX", 30, 3, -1, 1, 20.969612),
    Sketcher.Constraint("DistanceX", -1, 1, 69, 3, 3.181981),
    Sketcher.Constraint("DistanceY", 69, 3, -1, 1, 3.818019),
    Sketcher.Constraint("DistanceY", 70, 3, -1, 1, 10.181981),
    Sketcher.Constraint("DistanceX", 28, 3, -1, 1, 12.727922),
    Sketcher.Constraint("DistanceY", -1, 1, 28, 3, 5.727922),
    Sketcher.Constraint("DistanceY", 43, 3, -1, 1, 19.727922),
])
sketch1.setExpression("Constraints[159]", "Params.sketch1_diameter")
sketch1.setExpression("Constraints[160]", "Params.sketch1_diameter2")
sketch1.setExpression("Constraints[161]", "Params.sketch1_diameter3")
sketch1.setExpression("Constraints[162]", "Params.sketch1_radius")
sketch1.setExpression("Constraints[163]", "Params.sketch1_radius2")
pad1 = body.newObject("PartDesign::Pad", "Pad")
pad1.Profile = sketch1
pad1.setExpression("Length", "Params.pad1_length")
pad1.Reversed = True
doc.recompute()

fillet = body.newObject("PartDesign::Fillet", "Fillet")
fillet.Base = (pad1, edges_at(pad1, [
    (66, 1, -23),
    (66, 1, -7),
    (62, 1, -7),
    (50, 1, 5),
    (50, 1, 23),
    (42, 1, 23),
    (30, 1, 35),
    (-30, 1, 35),
    (-42, 1, 23),
    (-50, 1, 23),
    (-50, 1, 5),
    (-62, 1, -7),
    (-66, 1, -7),
    (50, 1, -7),
    (50, 1, 1),
    (58, 1, -7),
    (-50, 1, 1),
    (-50, 1, -7),
    (-58, 1, -7),
]))
fillet.setExpression("Radius", "Params.fillet_radius")

doc.recompute()
